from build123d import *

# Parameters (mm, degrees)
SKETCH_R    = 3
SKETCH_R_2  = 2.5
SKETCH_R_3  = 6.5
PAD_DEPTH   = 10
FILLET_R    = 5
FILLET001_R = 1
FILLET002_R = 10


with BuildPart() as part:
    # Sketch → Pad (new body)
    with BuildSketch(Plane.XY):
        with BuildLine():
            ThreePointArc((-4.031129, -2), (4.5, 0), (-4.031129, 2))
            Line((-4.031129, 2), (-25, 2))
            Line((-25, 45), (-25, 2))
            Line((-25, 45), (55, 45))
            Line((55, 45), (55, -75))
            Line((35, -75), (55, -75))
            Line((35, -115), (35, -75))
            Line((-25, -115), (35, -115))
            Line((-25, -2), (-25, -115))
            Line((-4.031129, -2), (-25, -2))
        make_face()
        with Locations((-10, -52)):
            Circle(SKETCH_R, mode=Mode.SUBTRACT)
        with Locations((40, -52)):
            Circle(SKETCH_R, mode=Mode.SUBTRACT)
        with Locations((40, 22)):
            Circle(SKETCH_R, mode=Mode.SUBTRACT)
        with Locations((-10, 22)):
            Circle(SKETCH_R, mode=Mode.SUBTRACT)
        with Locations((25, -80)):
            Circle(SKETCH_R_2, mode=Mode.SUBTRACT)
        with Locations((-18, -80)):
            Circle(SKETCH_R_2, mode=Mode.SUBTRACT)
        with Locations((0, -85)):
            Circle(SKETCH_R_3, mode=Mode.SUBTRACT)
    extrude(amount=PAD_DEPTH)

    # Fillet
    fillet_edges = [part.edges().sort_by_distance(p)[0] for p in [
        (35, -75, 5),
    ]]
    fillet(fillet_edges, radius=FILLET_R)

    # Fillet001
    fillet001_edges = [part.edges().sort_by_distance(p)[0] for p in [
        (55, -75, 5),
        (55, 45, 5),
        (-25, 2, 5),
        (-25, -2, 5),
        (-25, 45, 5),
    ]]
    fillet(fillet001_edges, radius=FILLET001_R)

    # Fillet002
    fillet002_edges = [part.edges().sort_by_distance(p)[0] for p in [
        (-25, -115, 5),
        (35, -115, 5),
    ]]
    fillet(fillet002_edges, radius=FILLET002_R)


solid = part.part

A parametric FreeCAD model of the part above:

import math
import FreeCAD as App
import Part
import Sketcher
Q = App.Units.Quantity


def edges_at(feature, points):
    """Names of the edges that pass closest to the given points."""
    edges = feature.Shape.Edges
    near = lambda p: min(range(len(edges)), key=lambda i: edges[i].distToShape(Part.Vertex(*p))[0])
    return sorted({f"Edge{near(p) + 1}" for p in points})

doc = App.newDocument("Part")
body = doc.addObject("PartDesign::Body", "Body")

sketch1 = body.newObject("Sketcher::SketchObject", "Sketch")
sketch1.AttachmentSupport = (doc.getObject("XY_Plane"), [""])
sketch1.MapMode = "FlatFace"
sketch1.addGeometry(Part.ArcOfCircle(Part.Circle(App.Vector(0, 0, 0), App.Vector(0, 0, 1), 4.5), math.radians(-153.6122), math.radians(153.6122)), False)
sketch1.addGeometry(Part.LineSegment(App.Vector(-4.031129, -2, 0), App.Vector(-25, -2, 0)), False)
sketch1.addGeometry(Part.LineSegment(App.Vector(-25, -2, 0), App.Vector(-25, -115, 0)), False)
sketch1.addGeometry(Part.LineSegment(App.Vector(-25, -115, 0), App.Vector(35, -115, 0)), False)
sketch1.addGeometry(Part.LineSegment(App.Vector(35, -115, 0), App.Vector(35, -75, 0)), False)
sketch1.addGeometry(Part.LineSegment(App.Vector(35, -75, 0), App.Vector(55, -75, 0)), False)
sketch1.addGeometry(Part.LineSegment(App.Vector(55, -75, 0), App.Vector(55, 45, 0)), False)
sketch1.addGeometry(Part.LineSegment(App.Vector(55, 45, 0), App.Vector(-25, 45, 0)), False)
sketch1.addGeometry(Part.LineSegment(App.Vector(-25, 45, 0), App.Vector(-25, 2, 0)), False)
sketch1.addGeometry(Part.LineSegment(App.Vector(-25, 2, 0), App.Vector(-4.031129, 2, 0)), False)
sketch1.addGeometry(Part.Circle(App.Vector(25, -80, 0), App.Vector(0, 0, 1), 2.5), False)
sketch1.addGeometry(Part.Circle(App.Vector(40, -52, 0), App.Vector(0, 0, 1), 3), False)
sketch1.addGeometry(Part.Circle(App.Vector(0, -85, 0), App.Vector(0, 0, 1), 6.5), False)
sketch1.addGeometry(Part.Circle(App.Vector(-18, -80, 0), App.Vector(0, 0, 1), 2.5), False)
sketch1.addGeometry(Part.Circle(App.Vector(-10, -52, 0), App.Vector(0, 0, 1), 3), False)
sketch1.addGeometry(Part.Circle(App.Vector(40, 22, 0), App.Vector(0, 0, 1), 3), False)
sketch1.addGeometry(Part.Circle(App.Vector(-10, 22, 0), App.Vector(0, 0, 1), 3), False)
sketch1.addConstraint(Sketcher.Constraint("Coincident", 0, 1, 1, 1))
sketch1.addConstraint(Sketcher.Constraint("Coincident", 1, 2, 2, 1))
sketch1.addConstraint(Sketcher.Constraint("Coincident", 2, 2, 3, 1))
sketch1.addConstraint(Sketcher.Constraint("Coincident", 3, 2, 4, 1))
sketch1.addConstraint(Sketcher.Constraint("Coincident", 4, 2, 5, 1))
sketch1.addConstraint(Sketcher.Constraint("Coincident", 5, 2, 6, 1))
sketch1.addConstraint(Sketcher.Constraint("Coincident", 6, 2, 7, 1))
sketch1.addConstraint(Sketcher.Constraint("Coincident", 7, 2, 8, 1))
sketch1.addConstraint(Sketcher.Constraint("Coincident", 8, 2, 9, 1))
sketch1.addConstraint(Sketcher.Constraint("Coincident", 9, 2, 0, 2))
sketch1.addConstraint(Sketcher.Constraint("Horizontal", 1))
sketch1.addConstraint(Sketcher.Constraint("Vertical", 2))
sketch1.addConstraint(Sketcher.Constraint("Horizontal", 3))
sketch1.addConstraint(Sketcher.Constraint("Vertical", 4))
sketch1.addConstraint(Sketcher.Constraint("Horizontal", 5))
sketch1.addConstraint(Sketcher.Constraint("Vertical", 6))
sketch1.addConstraint(Sketcher.Constraint("Horizontal", 7))
sketch1.addConstraint(Sketcher.Constraint("Vertical", 8))
sketch1.addConstraint(Sketcher.Constraint("Horizontal", 9))
sketch1.addConstraint(Sketcher.Constraint("Coincident", 0, 3, -1, 1))
sketch1.addConstraint(Sketcher.Constraint("Equal", 10, 13))
sketch1.addConstraint(Sketcher.Constraint("Equal", 11, 14))
sketch1.addConstraint(Sketcher.Constraint("Equal", 14, 15))
sketch1.addConstraint(Sketcher.Constraint("Equal", 15, 16))
sketch1.addConstraint(Sketcher.Constraint("Symmetric", 1, 2, 8, 2, -1))
sketch1.addConstraint(Sketcher.Constraint("PointOnObject", 12, 3, -2))
sketch1.addConstraint(Sketcher.Constraint("Horizontal", 10, 3, 13, 3))
sketch1.addConstraint(Sketcher.Constraint("Horizontal", 11, 3, 14, 3))
sketch1.addConstraint(Sketcher.Constraint("Horizontal", 15, 3, 16, 3))
sketch1.addConstraint(Sketcher.Constraint("Vertical", 11, 3, 15, 3))
sketch1.addConstraint(Sketcher.Constraint("Vertical", 14, 3, 16, 3))
sketch1.addConstraint(Sketcher.Constraint("Diameter", 10, Q("5 mm")))
sketch1.addConstraint(Sketcher.Constraint("Diameter", 11, Q("6 mm")))
sketch1.addConstraint(Sketcher.Constraint("Diameter", 12, Q("13 mm")))
sketch1.addConstraint(Sketcher.Constraint("Radius", 0, Q("4.5 mm")))
sketch1.addConstraint(Sketcher.Constraint("DistanceX", 3, 1, 3, 2, Q("60 mm")))
sketch1.addConstraint(Sketcher.Constraint("DistanceX", 5, 1, 5, 2, Q("20 mm")))
sketch1.addConstraint(Sketcher.Constraint("DistanceY", 2, 2, 2, 1, Q("113 mm")))
sketch1.addConstraint(Sketcher.Constraint("DistanceY", 4, 1, 4, 2, Q("40 mm")))
sketch1.addConstraint(Sketcher.Constraint("DistanceY", 6, 1, 6, 2, Q("120 mm")))
sketch1.addConstraint(Sketcher.Constraint("DistanceY", 8, 2, 8, 1, Q("43 mm")))
sketch1.addConstraint(Sketcher.Constraint("DistanceX", -1, 1, 10, 3, Q("25 mm")))
sketch1.addConstraint(Sketcher.Constraint("DistanceY", 10, 3, -1, 1, Q("80 mm")))
sketch1.addConstraint(Sketcher.Constraint("DistanceX", -1, 1, 11, 3, Q("40 mm")))
sketch1.addConstraint(Sketcher.Constraint("DistanceY", 11, 3, -1, 1, Q("52 mm")))
sketch1.addConstraint(Sketcher.Constraint("DistanceY", 12, 3, -1, 1, Q("85 mm")))
sketch1.addConstraint(Sketcher.Constraint("DistanceX", 13, 3, -1, 1, Q("18 mm")))
sketch1.addConstraint(Sketcher.Constraint("DistanceX", 14, 3, -1, 1, Q("10 mm")))
sketch1.addConstraint(Sketcher.Constraint("DistanceY", -1, 1, 15, 3, Q("22 mm")))
sketch1.addConstraint(Sketcher.Constraint("DistanceX", 1, 2, -1, 1, Q("25 mm")))
pad1 = body.newObject("PartDesign::Pad", "Pad")
pad1.Profile = sketch1
pad1.Length = 10
doc.recompute()

fillet = body.newObject("PartDesign::Fillet", "Fillet")
fillet.Base = (pad1, edges_at(pad1, [(35, -75, 5)]))
fillet.Radius = 5
doc.recompute()

fillet2 = body.newObject("PartDesign::Fillet", "Fillet001")
fillet2.Base = (fillet, edges_at(fillet, [
    (55, -75, 5),
    (55, 45, 5),
    (-25, 2, 5),
    (-25, -2, 5),
    (-25, 45, 5),
]))
fillet2.Radius = 1
doc.recompute()

fillet3 = body.newObject("PartDesign::Fillet", "Fillet002")
fillet3.Base = (fillet2, edges_at(fillet2, [(-25, -115, 5), (35, -115, 5)]))
fillet3.Radius = 10

doc.recompute()
